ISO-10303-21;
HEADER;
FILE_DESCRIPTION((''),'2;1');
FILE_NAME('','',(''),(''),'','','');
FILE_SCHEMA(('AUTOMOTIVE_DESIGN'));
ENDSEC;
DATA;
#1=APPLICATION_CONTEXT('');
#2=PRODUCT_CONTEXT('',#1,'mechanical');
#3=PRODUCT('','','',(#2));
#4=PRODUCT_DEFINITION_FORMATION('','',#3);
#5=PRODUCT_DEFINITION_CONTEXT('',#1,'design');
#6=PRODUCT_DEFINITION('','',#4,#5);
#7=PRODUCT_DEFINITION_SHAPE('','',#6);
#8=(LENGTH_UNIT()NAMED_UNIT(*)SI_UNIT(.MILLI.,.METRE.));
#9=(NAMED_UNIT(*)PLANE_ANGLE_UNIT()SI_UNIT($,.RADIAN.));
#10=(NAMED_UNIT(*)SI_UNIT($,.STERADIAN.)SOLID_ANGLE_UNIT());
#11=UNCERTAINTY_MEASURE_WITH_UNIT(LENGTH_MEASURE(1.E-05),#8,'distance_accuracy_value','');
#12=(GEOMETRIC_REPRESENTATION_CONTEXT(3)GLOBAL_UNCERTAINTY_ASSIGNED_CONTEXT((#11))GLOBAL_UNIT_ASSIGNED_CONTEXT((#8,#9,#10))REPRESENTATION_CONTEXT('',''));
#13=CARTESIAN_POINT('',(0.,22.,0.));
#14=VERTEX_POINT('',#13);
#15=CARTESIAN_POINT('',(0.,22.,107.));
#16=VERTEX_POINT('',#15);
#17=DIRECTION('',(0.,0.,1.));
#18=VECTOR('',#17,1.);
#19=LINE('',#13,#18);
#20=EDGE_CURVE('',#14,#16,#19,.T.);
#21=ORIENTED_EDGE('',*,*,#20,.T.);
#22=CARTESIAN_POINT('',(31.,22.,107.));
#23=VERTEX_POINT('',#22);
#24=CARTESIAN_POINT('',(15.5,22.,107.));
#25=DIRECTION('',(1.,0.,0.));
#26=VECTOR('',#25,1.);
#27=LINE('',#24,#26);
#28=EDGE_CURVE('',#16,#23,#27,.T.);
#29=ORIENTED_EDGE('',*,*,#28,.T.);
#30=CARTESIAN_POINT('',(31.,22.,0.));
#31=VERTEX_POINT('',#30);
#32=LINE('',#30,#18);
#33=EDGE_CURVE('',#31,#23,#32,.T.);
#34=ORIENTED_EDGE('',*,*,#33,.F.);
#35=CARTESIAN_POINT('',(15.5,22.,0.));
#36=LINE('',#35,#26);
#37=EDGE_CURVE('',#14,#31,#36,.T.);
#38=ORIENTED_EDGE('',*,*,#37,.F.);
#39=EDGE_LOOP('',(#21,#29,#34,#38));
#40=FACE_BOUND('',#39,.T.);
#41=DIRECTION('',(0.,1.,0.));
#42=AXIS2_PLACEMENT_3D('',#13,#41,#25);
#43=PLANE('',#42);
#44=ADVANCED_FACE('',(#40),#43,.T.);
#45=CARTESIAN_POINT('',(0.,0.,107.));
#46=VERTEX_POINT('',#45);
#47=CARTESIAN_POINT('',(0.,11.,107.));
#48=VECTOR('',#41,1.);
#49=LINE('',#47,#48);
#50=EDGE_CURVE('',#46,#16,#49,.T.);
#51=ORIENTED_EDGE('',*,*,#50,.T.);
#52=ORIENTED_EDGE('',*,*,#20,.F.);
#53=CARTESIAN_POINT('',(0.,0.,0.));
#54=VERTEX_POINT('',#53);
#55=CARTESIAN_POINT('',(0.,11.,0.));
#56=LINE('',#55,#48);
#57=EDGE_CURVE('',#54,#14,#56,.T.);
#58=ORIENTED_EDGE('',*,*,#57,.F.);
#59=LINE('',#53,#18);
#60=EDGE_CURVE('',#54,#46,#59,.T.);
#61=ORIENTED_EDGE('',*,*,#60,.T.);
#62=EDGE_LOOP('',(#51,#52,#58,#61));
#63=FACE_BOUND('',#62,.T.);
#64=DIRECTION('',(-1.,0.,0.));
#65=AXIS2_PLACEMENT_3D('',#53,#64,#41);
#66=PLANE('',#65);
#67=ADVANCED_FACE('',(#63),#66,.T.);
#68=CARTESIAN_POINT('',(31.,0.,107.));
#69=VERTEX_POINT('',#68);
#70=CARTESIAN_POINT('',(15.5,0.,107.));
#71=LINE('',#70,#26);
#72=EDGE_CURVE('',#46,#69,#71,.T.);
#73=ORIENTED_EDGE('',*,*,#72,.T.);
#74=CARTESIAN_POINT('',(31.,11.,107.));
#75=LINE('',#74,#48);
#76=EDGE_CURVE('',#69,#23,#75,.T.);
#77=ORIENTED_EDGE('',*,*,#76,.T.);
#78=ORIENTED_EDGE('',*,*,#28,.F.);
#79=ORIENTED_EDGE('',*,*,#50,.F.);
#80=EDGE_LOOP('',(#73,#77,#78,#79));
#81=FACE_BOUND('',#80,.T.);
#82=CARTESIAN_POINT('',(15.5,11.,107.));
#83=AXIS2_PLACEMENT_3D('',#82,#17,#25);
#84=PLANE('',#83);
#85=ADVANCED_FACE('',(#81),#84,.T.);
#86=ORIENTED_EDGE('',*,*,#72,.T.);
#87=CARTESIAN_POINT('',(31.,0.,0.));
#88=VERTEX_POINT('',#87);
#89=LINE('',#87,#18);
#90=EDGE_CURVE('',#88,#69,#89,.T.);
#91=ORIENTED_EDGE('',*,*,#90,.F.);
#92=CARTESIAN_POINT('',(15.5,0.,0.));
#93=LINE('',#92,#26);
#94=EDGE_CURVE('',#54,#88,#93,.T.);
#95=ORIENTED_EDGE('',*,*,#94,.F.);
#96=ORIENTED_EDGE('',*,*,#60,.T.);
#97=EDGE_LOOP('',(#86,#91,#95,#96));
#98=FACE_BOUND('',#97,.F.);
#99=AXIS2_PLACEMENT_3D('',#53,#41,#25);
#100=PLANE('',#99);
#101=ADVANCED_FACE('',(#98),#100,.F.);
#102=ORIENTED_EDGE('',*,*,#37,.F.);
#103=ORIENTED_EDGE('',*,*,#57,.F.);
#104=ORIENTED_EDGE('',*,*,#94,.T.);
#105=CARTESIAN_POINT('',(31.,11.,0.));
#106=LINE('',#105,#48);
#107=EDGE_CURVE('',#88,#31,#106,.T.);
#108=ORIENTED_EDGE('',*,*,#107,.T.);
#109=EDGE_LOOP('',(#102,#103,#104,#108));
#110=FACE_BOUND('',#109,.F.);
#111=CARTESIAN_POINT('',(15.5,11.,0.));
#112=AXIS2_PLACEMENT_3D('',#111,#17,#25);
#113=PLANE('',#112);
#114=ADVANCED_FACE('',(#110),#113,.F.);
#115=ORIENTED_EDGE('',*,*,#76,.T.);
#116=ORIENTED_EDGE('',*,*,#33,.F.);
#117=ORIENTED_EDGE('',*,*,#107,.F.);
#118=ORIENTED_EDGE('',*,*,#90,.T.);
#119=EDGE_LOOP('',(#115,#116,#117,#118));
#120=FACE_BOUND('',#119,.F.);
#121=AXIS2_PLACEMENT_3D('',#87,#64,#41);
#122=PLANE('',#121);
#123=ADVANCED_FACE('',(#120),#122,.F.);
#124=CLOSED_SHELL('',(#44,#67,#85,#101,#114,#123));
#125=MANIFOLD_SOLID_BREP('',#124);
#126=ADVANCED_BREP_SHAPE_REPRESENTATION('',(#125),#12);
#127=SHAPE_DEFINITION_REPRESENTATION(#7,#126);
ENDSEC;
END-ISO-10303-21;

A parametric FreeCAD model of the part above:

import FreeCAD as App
import Part
import Sketcher
from FreeCAD import Vector


def add_polygon(sketch, points):
    """Adds a closed chain of lines whose ends are joined by coincident constraints."""
    first, n = sketch.GeometryCount, len(points)
    for a, b in zip(points, points[1:] + points[:1]):
        sketch.addGeometry(Part.LineSegment(App.Vector(*a, 0), App.Vector(*b, 0)), False)
    for i in range(n):
        sketch.addConstraint(Sketcher.Constraint("Coincident", first + i, 2, first + (i + 1) % n, 1))

doc = App.newDocument("Part")
body = doc.addObject("PartDesign::Body", "Body")

sketch1 = body.newObject("Sketcher::SketchObject", "Sketch")
sketch1.AttachmentSupport = (doc.getObject("XY_Plane"), [""])
sketch1.MapMode = "FlatFace"
add_polygon(sketch1, [(0, 22), (0, 0), (31, 0), (31, 22)])
sketch1.addConstraint([
    Sketcher.Constraint("Vertical", 0),
    Sketcher.Constraint("Horizontal", 1),
    Sketcher.Constraint("Vertical", 2),
    Sketcher.Constraint("Horizontal", 3),
    Sketcher.Constraint("Coincident", 0, 2, -1, 1),
    Sketcher.Constraint("DistanceX", 1, 1, 1, 2, 31.0),
    Sketcher.Constraint("DistanceY", 0, 2, 0, 1, 22.0),
])
pad1 = body.newObject("PartDesign::Pad", "Pad")
pad1.Profile = sketch1
pad1.Length = 107

doc.recompute()
